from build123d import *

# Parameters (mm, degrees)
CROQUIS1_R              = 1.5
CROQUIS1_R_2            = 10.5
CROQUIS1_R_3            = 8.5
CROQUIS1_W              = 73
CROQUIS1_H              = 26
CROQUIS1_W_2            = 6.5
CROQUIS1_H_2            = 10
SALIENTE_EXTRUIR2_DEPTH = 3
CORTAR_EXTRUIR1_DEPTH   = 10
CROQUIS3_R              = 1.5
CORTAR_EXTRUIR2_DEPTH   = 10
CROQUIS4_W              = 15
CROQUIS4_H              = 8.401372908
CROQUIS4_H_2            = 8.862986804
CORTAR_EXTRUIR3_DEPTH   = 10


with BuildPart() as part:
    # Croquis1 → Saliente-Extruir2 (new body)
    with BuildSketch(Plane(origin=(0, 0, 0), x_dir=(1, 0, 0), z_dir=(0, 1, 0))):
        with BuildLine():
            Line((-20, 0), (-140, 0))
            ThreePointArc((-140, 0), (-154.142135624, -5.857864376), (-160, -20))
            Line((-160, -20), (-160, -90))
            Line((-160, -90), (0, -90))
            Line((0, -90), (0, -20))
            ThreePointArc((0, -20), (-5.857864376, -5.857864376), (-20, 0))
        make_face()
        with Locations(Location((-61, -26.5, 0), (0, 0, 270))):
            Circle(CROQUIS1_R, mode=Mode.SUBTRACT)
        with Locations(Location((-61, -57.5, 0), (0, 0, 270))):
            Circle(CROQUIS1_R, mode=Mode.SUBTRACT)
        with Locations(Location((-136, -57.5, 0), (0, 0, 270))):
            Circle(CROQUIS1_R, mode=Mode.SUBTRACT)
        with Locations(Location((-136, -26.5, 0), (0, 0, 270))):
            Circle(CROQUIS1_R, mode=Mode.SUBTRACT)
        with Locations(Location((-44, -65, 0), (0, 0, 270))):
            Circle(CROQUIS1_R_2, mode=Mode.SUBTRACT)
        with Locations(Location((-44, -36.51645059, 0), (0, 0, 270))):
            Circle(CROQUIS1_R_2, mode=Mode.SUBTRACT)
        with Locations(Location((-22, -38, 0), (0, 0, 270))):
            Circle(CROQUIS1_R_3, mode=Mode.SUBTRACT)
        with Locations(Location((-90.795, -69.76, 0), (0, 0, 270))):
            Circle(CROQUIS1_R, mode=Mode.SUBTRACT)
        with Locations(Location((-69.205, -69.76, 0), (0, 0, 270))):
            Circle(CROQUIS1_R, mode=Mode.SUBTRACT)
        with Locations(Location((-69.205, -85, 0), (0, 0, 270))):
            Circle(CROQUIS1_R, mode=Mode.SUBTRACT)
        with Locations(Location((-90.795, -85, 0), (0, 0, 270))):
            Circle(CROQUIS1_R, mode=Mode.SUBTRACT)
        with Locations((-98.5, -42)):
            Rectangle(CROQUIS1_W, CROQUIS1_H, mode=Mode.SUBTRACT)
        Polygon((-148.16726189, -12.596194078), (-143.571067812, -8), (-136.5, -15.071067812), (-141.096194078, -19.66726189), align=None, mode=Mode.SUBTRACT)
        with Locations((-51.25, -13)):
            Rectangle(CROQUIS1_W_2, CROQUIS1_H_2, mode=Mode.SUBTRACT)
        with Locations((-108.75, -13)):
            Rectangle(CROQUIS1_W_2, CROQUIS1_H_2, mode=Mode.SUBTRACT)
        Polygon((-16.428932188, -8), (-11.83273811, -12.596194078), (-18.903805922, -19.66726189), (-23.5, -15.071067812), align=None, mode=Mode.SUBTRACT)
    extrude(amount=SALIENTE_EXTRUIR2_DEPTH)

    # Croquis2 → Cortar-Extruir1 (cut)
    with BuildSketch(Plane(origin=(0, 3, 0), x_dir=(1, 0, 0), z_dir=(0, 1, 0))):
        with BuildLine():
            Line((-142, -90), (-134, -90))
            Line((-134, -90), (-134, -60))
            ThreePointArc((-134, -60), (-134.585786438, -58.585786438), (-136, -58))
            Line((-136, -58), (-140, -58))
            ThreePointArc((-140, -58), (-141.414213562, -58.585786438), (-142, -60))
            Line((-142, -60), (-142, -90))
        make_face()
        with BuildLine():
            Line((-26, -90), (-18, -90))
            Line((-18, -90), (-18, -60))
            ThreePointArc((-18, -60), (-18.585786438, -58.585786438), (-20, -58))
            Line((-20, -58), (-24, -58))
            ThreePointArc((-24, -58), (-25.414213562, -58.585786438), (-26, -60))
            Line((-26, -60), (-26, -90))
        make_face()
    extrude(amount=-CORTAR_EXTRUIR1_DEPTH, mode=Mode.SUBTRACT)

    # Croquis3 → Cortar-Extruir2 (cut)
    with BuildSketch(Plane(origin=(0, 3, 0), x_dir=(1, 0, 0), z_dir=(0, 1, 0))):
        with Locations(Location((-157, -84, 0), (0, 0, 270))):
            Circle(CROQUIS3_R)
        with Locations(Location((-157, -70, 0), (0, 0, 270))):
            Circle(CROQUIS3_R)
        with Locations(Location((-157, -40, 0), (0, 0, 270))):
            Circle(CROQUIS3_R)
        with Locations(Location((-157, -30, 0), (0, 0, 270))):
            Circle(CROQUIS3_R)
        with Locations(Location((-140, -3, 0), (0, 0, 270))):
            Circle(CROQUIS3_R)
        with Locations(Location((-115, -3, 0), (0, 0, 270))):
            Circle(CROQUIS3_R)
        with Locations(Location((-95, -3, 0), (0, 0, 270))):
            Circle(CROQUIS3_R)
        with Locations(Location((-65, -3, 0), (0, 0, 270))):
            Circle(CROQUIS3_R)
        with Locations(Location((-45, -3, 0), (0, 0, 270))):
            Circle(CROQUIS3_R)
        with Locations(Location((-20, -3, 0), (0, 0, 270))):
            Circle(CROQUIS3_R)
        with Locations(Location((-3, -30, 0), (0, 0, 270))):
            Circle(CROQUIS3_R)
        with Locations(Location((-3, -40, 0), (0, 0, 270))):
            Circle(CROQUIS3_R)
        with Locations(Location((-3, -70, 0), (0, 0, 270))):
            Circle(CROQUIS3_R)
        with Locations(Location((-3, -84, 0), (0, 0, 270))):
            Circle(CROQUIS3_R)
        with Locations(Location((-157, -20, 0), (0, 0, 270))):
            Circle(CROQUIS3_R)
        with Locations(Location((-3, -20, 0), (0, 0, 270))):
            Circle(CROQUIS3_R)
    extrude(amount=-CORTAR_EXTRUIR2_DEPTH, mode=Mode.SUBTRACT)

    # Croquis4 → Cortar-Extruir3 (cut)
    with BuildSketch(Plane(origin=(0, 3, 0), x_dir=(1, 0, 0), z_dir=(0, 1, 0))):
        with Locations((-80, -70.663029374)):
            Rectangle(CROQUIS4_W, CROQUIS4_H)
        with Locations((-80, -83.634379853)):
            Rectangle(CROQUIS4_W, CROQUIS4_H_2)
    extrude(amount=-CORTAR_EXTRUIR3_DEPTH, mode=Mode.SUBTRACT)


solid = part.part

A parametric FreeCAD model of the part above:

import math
import FreeCAD as App
import Part
import Sketcher

V = App.Vector

doc = App.newDocument("Part")
body = doc.addObject("PartDesign::Body", "Body")

# Sketch on XZ plane
sketch1 = body.newObject("Sketcher::SketchObject", "Sketch")
sketch1.AttachmentSupport = (doc.getObject("XZ_Plane"), [""])
sketch1.MapMode = "FlatFace"
sketch1.addGeometry(Part.LineSegment(V(-20, 0, 0), V(-140, 0, 0)), False)
sketch1.addGeometry(Part.ArcOfCircle(Part.Circle(V(-140, 20, 0), V(0, 0, 1), 20), math.radians(180), math.radians(270)), False)
sketch1.addGeometry(Part.LineSegment(V(-160, 20, 0), V(-160, 90, 0)), False)
sketch1.addGeometry(Part.LineSegment(V(-160, 90, 0), V(0, 90, 0)), False)
sketch1.addGeometry(Part.LineSegment(V(0, 90, 0), V(0, 20, 0)), False)
sketch1.addGeometry(Part.ArcOfCircle(Part.Circle(V(-20, 20, 0), V(0, 0, 1), 20), math.radians(-90), math.radians(0)), False)
sketch1.addGeometry(Part.Circle(V(-90.8, 85, 0), V(0, 0, 1), 1.5), False)
sketch1.addGeometry(Part.Circle(V(-90.8, 69.8, 0), V(0, 0, 1), 1.5), False)
sketch1.addGeometry(Part.Circle(V(-136, 57.5, 0), V(0, 0, 1), 1.5), False)
sketch1.addGeometry(Part.Circle(V(-69.2, 85, 0), V(0, 0, 1), 1.5), False)
sketch1.addGeometry(Part.Circle(V(-69.2, 69.8, 0), V(0, 0, 1), 1.5), False)
sketch1.addGeometry(Part.Circle(V(-61, 57.5, 0), V(0, 0, 1), 1.5), False)
sketch1.addGeometry(Part.Circle(V(-44, 65, 0), V(0, 0, 1), 10.5), False)
sketch1.addGeometry(Part.LineSegment(V(-62, 55, 0), V(-135, 55, 0)), False)
sketch1.addGeometry(Part.LineSegment(V(-135, 55, 0), V(-135, 29, 0)), False)
sketch1.addGeometry(Part.LineSegment(V(-135, 29, 0), V(-62, 29, 0)), False)
sketch1.addGeometry(Part.LineSegment(V(-62, 29, 0), V(-62, 55, 0)), False)
sketch1.addGeometry(Part.Circle(V(-136, 26.5, 0), V(0, 0, 1), 1.5), False)
sketch1.addGeometry(Part.LineSegment(V(-141.1, 19.7, 0), V(-148.2, 12.6, 0)), False)
sketch1.addGeometry(Part.LineSegment(V(-148.2, 12.6, 0), V(-143.6, 8, 0)), False)
sketch1.addGeometry(Part.LineSegment(V(-143.6, 8, 0), V(-136.5, 15.1, 0)), False)
sketch1.addGeometry(Part.LineSegment(V(-136.5, 15.1, 0), V(-141.1, 19.7, 0)), False)
sketch1.addGeometry(Part.LineSegment(V(-105.5, 18, 0), V(-112, 18, 0)), False)
sketch1.addGeometry(Part.LineSegment(V(-112, 18, 0), V(-112, 8, 0)), False)
sketch1.addGeometry(Part.LineSegment(V(-112, 8, 0), V(-105.5, 8, 0)), False)
sketch1.addGeometry(Part.LineSegment(V(-105.5, 8, 0), V(-105.5, 18, 0)), False)
sketch1.addGeometry(Part.Circle(V(-22, 38, 0), V(0, 0, 1), 8.5), False)
sketch1.addGeometry(Part.Circle(V(-44, 36.5, 0), V(0, 0, 1), 10.5), False)
sketch1.addGeometry(Part.Circle(V(-61, 26.5, 0), V(0, 0, 1), 1.5), False)
sketch1.addGeometry(Part.LineSegment(V(-48, 18, 0), V(-54.5, 18, 0)), False)
sketch1.addGeometry(Part.LineSegment(V(-54.5, 18, 0), V(-54.5, 8, 0)), False)
sketch1.addGeometry(Part.LineSegment(V(-54.5, 8, 0), V(-48, 8, 0)), False)
sketch1.addGeometry(Part.LineSegment(V(-48, 8, 0), V(-48, 18, 0)), False)
sketch1.addGeometry(Part.LineSegment(V(-23.5, 15.1, 0), V(-16.4, 8, 0)), False)
sketch1.addGeometry(Part.LineSegment(V(-16.4, 8, 0), V(-11.8, 12.6, 0)), False)
sketch1.addGeometry(Part.LineSegment(V(-11.8, 12.6, 0), V(-18.9, 19.7, 0)), False)
sketch1.addGeometry(Part.LineSegment(V(-18.9, 19.7, 0), V(-23.5, 15.1, 0)), False)
sketch1.addConstraint(Sketcher.Constraint("Tangent", 0, 2, 1, 2))
sketch1.addConstraint(Sketcher.Constraint("Tangent", 1, 1, 2, 1))
sketch1.addConstraint(Sketcher.Constraint("Coincident", 2, 2, 3, 1))
sketch1.addConstraint(Sketcher.Constraint("Coincident", 3, 2, 4, 1))
sketch1.addConstraint(Sketcher.Constraint("Tangent", 4, 2, 5, 2))
sketch1.addConstraint(Sketcher.Constraint("Tangent", 5, 1, 0, 1))
sketch1.addConstraint(Sketcher.Constraint("Coincident", 13, 2, 14, 1))
sketch1.addConstraint(Sketcher.Constraint("Coincident", 14, 2, 15, 1))
sketch1.addConstraint(Sketcher.Constraint("Coincident", 15, 2, 16, 1))
sketch1.addConstraint(Sketcher.Constraint("Coincident", 16, 2, 13, 1))
sketch1.addConstraint(Sketcher.Constraint("Coincident", 18, 2, 19, 1))
sketch1.addConstraint(Sketcher.Constraint("Coincident", 19, 2, 20, 1))
sketch1.addConstraint(Sketcher.Constraint("Coincident", 20, 2, 21, 1))
sketch1.addConstraint(Sketcher.Constraint("Coincident", 21, 2, 18, 1))
sketch1.addConstraint(Sketcher.Constraint("Coincident", 22, 2, 23, 1))
sketch1.addConstraint(Sketcher.Constraint("Coincident", 23, 2, 24, 1))
sketch1.addConstraint(Sketcher.Constraint("Coincident", 24, 2, 25, 1))
sketch1.addConstraint(Sketcher.Constraint("Coincident", 25, 2, 22, 1))
sketch1.addConstraint(Sketcher.Constraint("Coincident", 29, 2, 30, 1))
sketch1.addConstraint(Sketcher.Constraint("Coincident", 30, 2, 31, 1))
sketch1.addConstraint(Sketcher.Constraint("Coincident", 31, 2, 32, 1))
sketch1.addConstraint(Sketcher.Constraint("Coincident", 32, 2, 29, 1))
sketch1.addConstraint(Sketcher.Constraint("Coincident", 33, 2, 34, 1))
sketch1.addConstraint(Sketcher.Constraint("Coincident", 34, 2, 35, 1))
sketch1.addConstraint(Sketcher.Constraint("Coincident", 35, 2, 36, 1))
sketch1.addConstraint(Sketcher.Constraint("Coincident", 36, 2, 33, 1))
sketch1.addConstraint(Sketcher.Constraint("Horizontal", 0))
sketch1.addConstraint(Sketcher.Constraint("Vertical", 2))
sketch1.addConstraint(Sketcher.Constraint("Horizontal", 3))
sketch1.addConstraint(Sketcher.Constraint("Vertical", 4))
sketch1.addConstraint(Sketcher.Constraint("Horizontal", 13))
sketch1.addConstraint(Sketcher.Constraint("Vertical", 14))
sketch1.addConstraint(Sketcher.Constraint("Horizontal", 15))
sketch1.addConstraint(Sketcher.Constraint("Vertical", 16))
sketch1.addConstraint(Sketcher.Constraint("Horizontal", 22))
sketch1.addConstraint(Sketcher.Constraint("Vertical", 23))
sketch1.addConstraint(Sketcher.Constraint("Horizontal", 24))
sketch1.addConstraint(Sketcher.Constraint("Vertical", 25))
sketch1.addConstraint(Sketcher.Constraint("Horizontal", 29))
sketch1.addConstraint(Sketcher.Constraint("Vertical", 30))
sketch1.addConstraint(Sketcher.Constraint("Horizontal", 31))
sketch1.addConstraint(Sketcher.Constraint("Vertical", 32))
sketch1.addConstraint(Sketcher.Constraint("Equal", 1, 5))
sketch1.addConstraint(Sketcher.Constraint("Equal", 6, 7))
sketch1.addConstraint(Sketcher.Constraint("Equal", 7, 8))
sketch1.addConstraint(Sketcher.Constraint("Equal", 8, 9))
sketch1.addConstraint(Sketcher.Constraint("Equal", 9, 10))
sketch1.addConstraint(Sketcher.Constraint("Equal", 10, 11))
sketch1.addConstraint(Sketcher.Constraint("Equal", 11, 17))
sketch1.addConstraint(Sketcher.Constraint("Equal", 12, 27))
sketch1.addConstraint(Sketcher.Constraint("Equal", 17, 28))
sketch1.addConstraint(Sketcher.Constraint("PointOnObject", 0, 2, -1))
sketch1.addConstraint(Sketcher.Constraint("PointOnObject", 3, 2, -2))
sketch1.addConstraint(Sketcher.Constraint("Perpendicular", 18, 19))
sketch1.addConstraint(Sketcher.Constraint("Perpendicular", 19, 20))
sketch1.addConstraint(Sketcher.Constraint("Perpendicular", 20, 21))
sketch1.addConstraint(Sketcher.Constraint("Parallel", 21, 33))
sketch1.addConstraint(Sketcher.Constraint("Perpendicular", 33, 34))
sketch1.addConstraint(Sketcher.Constraint("Perpendicular", 34, 35))
sketch1.addConstraint(Sketcher.Constraint("Perpendicular", 35, 36))
sketch1.addConstraint(Sketcher.Constraint("Horizontal", 6, 3, 9, 3))
sketch1.addConstraint(Sketcher.Constraint("Horizontal", 7, 3, 10, 3))
sketch1.addConstraint(Sketcher.Constraint("Horizontal", 8, 3, 11, 3))
sketch1.addConstraint(Sketcher.Constraint("Horizontal", 17, 3, 28, 3))
sketch1.addConstraint(Sketcher.Constraint("Horizontal", 19, 2, 23, 2))
sketch1.addConstraint(Sketcher.Constraint("Horizontal", 25, 2, 29, 2))
sketch1.addConstraint(Sketcher.Constraint("Horizontal", 24, 2, 30, 2))
sketch1.addConstraint(Sketcher.Constraint("Horizontal", 31, 2, 33, 2))
sketch1.addConstraint(Sketcher.Constraint("Horizontal", 18, 2, 34, 2))
sketch1.addConstraint(Sketcher.Constraint("Horizontal", 21, 2, 35, 2))
sketch1.addConstraint(Sketcher.Constraint("Vertical", 6, 3, 7, 3))
sketch1.addConstraint(Sketcher.Constraint("Vertical", 9, 3, 10, 3))
sketch1.addConstraint(Sketcher.Constraint("Vertical", 8, 3, 17, 3))
sketch1.addConstraint(Sketcher.Constraint("Vertical", 12, 3, 27, 3))
sketch1.addConstraint(Sketcher.Constraint("Vertical", 11, 3, 28, 3))
sketch1.addConstraint(Sketcher.Constraint("Equal", 24, 29))
sketch1.addConstraint(Sketcher.Constraint("Equal", 20, 33))
sketch1.addConstraint(Sketcher.Constraint("Diameter", 6, 3.0))
sketch1.addConstraint(Sketcher.Constraint("Diameter", 12, 21.0))
sketch1.addConstraint(Sketcher.Constraint("Diameter", 26, 17.0))
sketch1.addConstraint(Sketcher.Constraint("Radius", 1, 20.0))
sketch1.addConstraint(Sketcher.Constraint("DistanceX", 0, 2, 0, 1, 120.0))
sketch1.addConstraint(Sketcher.Constraint("DistanceX", 13, 2, 13, 1, 73.0))
sketch1.addConstraint(Sketcher.Constraint("DistanceY", 2, 1, 2, 2, 70.0))
sketch1.addConstraint(Sketcher.Constraint("DistanceY", 14, 2, 14, 1, 26.0))
sketch1.addConstraint(Sketcher.Constraint("DistanceY", 23, 2, 23, 1, 10.0))
sketch1.addConstraint(Sketcher.Constraint("Distance", 18, 10.0))
sketch1.addConstraint(Sketcher.Constraint("DistanceX", 22, 2, 22, 1, 6.5))
sketch1.addConstraint(Sketcher.Constraint("DistanceY", -1, 1, 6, 3, 85.0))
sketch1.addConstraint(Sketcher.Constraint("DistanceX", 8, 3, -1, 1, 136.0))
sketch1.addConstraint(Sketcher.Constraint("DistanceX", 11, 3, -1, 1, 61.0))
sketch1.addConstraint(Sketcher.Constraint("DistanceX", 12, 3, -1, 1, 44.0))
sketch1.addConstraint(Sketcher.Constraint("DistanceY", -1, 1, 12, 3, 65.0))
sketch1.addConstraint(Sketcher.Constraint("DistanceX", 26, 3, -1, 1, 22.0))
sketch1.addConstraint(Sketcher.Constraint("DistanceY", -1, 1, 26, 3, 38.0))
sketch1.addConstraint(Sketcher.Constraint("DistanceX", 13, 2, -1, 1, 135.0))
sketch1.addConstraint(Sketcher.Constraint("DistanceY", -1, 1, 13, 2, 55.0))
sketch1.addConstraint(Sketcher.Constraint("DistanceY", -1, 1, 19, 2, 8.0))
sketch1.addConstraint(Sketcher.Constraint("DistanceX", 22, 2, -1, 1, 112.0))
sketch1.addConstraint(Sketcher.Constraint("DistanceX", 31, 2, -1, 1, 48.0))
sketch1.addConstraint(Sketcher.Constraint("DistanceY", 17, 3, 8, 3, 31.0))
sketch1.addConstraint(Sketcher.Constraint("DistanceX", 20, 2, 24, 2, 31.0))
sketch1.addConstraint(Sketcher.Constraint("Distance", 19, 6.5))
sketch1.addConstraint(Sketcher.Constraint("DistanceY", -1, 1, 8, 3, 57.5))
sketch1.addConstraint(Sketcher.Constraint("DistanceX", 36, 2, -1, 1, 23.5))
sketch1.addConstraint(Sketcher.Constraint("DistanceY", -1, 1, 7, 3, 69.76))
sketch1.addConstraint(Sketcher.Constraint("DistanceX", 6, 3, 9, 3, 21.59))
sketch1.addConstraint(Sketcher.Constraint("DistanceX", 6, 3, -1, 1, 90.795))
sketch1.addConstraint(Sketcher.Constraint("DistanceY", -1, 1, 27, 3, 36.516451))
pad1 = body.newObject("PartDesign::Pad", "Pad")
pad1.Profile = sketch1
pad1.Length = 3
pad1.Reversed = True

# Sketch on XZ plane
sketch2 = body.newObject("Sketcher::SketchObject", "Sketch001")
sketch2.AttachmentSupport = (doc.getObject("XZ_Plane"), [""])
sketch2.MapMode = "FlatFace"
sketch2.AttachmentOffset = App.Placement(V(0, 0, -3), App.Rotation())
sketch2.addGeometry(Part.LineSegment(V(-142, 90, 0), V(-134, 90, 0)), False)
sketch2.addGeometry(Part.LineSegment(V(-134, 90, 0), V(-134, 60, 0)), False)
sketch2.addGeometry(Part.ArcOfCircle(Part.Circle(V(-136, 60, 0), V(0, 0, 1), 2), math.radians(-90), math.radians(0)), False)
sketch2.addGeometry(Part.LineSegment(V(-136, 58, 0), V(-140, 58, 0)), False)
sketch2.addGeometry(Part.ArcOfCircle(Part.Circle(V(-140, 60, 0), V(0, 0, 1), 2), math.radians(-180), math.radians(-90)), False)
sketch2.addGeometry(Part.LineSegment(V(-142, 60, 0), V(-142, 90, 0)), False)
sketch2.addGeometry(Part.LineSegment(V(-26, 90, 0), V(-18, 90, 0)), False)
sketch2.addGeometry(Part.LineSegment(V(-18, 90, 0), V(-18, 60, 0)), False)
sketch2.addGeometry(Part.ArcOfCircle(Part.Circle(V(-20, 60, 0), V(0, 0, 1), 2), math.radians(-90), math.radians(0)), False)
sketch2.addGeometry(Part.LineSegment(V(-20, 58, 0), V(-24, 58, 0)), False)
sketch2.addGeometry(Part.ArcOfCircle(Part.Circle(V(-24, 60, 0), V(0, 0, 1), 2), math.radians(-180), math.radians(-90)), False)
sketch2.addGeometry(Part.LineSegment(V(-26, 60, 0), V(-26, 90, 0)), False)
sketch2.addConstraint(Sketcher.Constraint("Coincident", 0, 2, 1, 1))
sketch2.addConstraint(Sketcher.Constraint("Tangent", 1, 2, 2, 2))
sketch2.addConstraint(Sketcher.Constraint("Tangent", 2, 1, 3, 1))
sketch2.addConstraint(Sketcher.Constraint("Tangent", 3, 2, 4, 2))
sketch2.addConstraint(Sketcher.Constraint("Tangent", 4, 1, 5, 1))
sketch2.addConstraint(Sketcher.Constraint("Coincident", 5, 2, 0, 1))
sketch2.addConstraint(Sketcher.Constraint("Coincident", 6, 2, 7, 1))
sketch2.addConstraint(Sketcher.Constraint("Tangent", 7, 2, 8, 2))
sketch2.addConstraint(Sketcher.Constraint("Tangent", 8, 1, 9, 1))
sketch2.addConstraint(Sketcher.Constraint("Tangent", 9, 2, 10, 2))
sketch2.addConstraint(Sketcher.Constraint("Tangent", 10, 1, 11, 1))
sketch2.addConstraint(Sketcher.Constraint("Coincident", 11, 2, 6, 1))
sketch2.addConstraint(Sketcher.Constraint("Horizontal", 0))
sketch2.addConstraint(Sketcher.Constraint("Vertical", 1))
sketch2.addConstraint(Sketcher.Constraint("Horizontal", 3))
sketch2.addConstraint(Sketcher.Constraint("Vertical", 5))
sketch2.addConstraint(Sketcher.Constraint("Horizontal", 6))
sketch2.addConstraint(Sketcher.Constraint("Vertical", 7))
sketch2.addConstraint(Sketcher.Constraint("Horizontal", 9))
sketch2.addConstraint(Sketcher.Constraint("Vertical", 11))
sketch2.addConstraint(Sketcher.Constraint("Equal", 2, 4))
sketch2.addConstraint(Sketcher.Constraint("Equal", 4, 8))
sketch2.addConstraint(Sketcher.Constraint("Equal", 8, 10))
sketch2.addConstraint(Sketcher.Constraint("Horizontal", 4, 3, 8, 3))
sketch2.addConstraint(Sketcher.Constraint("Horizontal", 5, 2, 6, 2))
sketch2.addConstraint(Sketcher.Constraint("Equal", 0, 6))
sketch2.addConstraint(Sketcher.Constraint("Radius", 2, 2.0))
sketch2.addConstraint(Sketcher.Constraint("DistanceX", 0, 1, 0, 2, 8.0))
sketch2.addConstraint(Sketcher.Constraint("DistanceY", 1, 2, 1, 1, 30.0))
sketch2.addConstraint(Sketcher.Constraint("DistanceX", 2, 3, -1, 1, 136.0))
sketch2.addConstraint(Sketcher.Constraint("DistanceY", -1, 1, 2, 3, 60.0))
sketch2.addConstraint(Sketcher.Constraint("DistanceX", 8, 3, -1, 1, 20.0))
pocket1 = body.newObject("PartDesign::Pocket", "Pocket")
pocket1.Profile = sketch2
pocket1.Length = 10
pocket1.Reversed = True

# Sketch on XZ plane
sketch3 = body.newObject("Sketcher::SketchObject", "Sketch002")
sketch3.AttachmentSupport = (doc.getObject("XZ_Plane"), [""])
sketch3.MapMode = "FlatFace"
sketch3.AttachmentOffset = App.Placement(V(0, 0, -3), App.Rotation())
sketch3.addGeometry(Part.Circle(V(-157, 84, 0), V(0, 0, 1), 1.5), False)
sketch3.addGeometry(Part.Circle(V(-157, 70, 0), V(0, 0, 1), 1.5), False)
sketch3.addGeometry(Part.Circle(V(-157, 40, 0), V(0, 0, 1), 1.5), False)
sketch3.addGeometry(Part.Circle(V(-157, 30, 0), V(0, 0, 1), 1.5), False)
sketch3.addGeometry(Part.Circle(V(-140, 3, 0), V(0, 0, 1), 1.5), False)
sketch3.addGeometry(Part.Circle(V(-115, 3, 0), V(0, 0, 1), 1.5), False)
sketch3.addGeometry(Part.Circle(V(-95, 3, 0), V(0, 0, 1), 1.5), False)
sketch3.addGeometry(Part.Circle(V(-65, 3, 0), V(0, 0, 1), 1.5), False)
sketch3.addGeometry(Part.Circle(V(-45, 3, 0), V(0, 0, 1), 1.5), False)
sketch3.addGeometry(Part.Circle(V(-20, 3, 0), V(0, 0, 1), 1.5), False)
sketch3.addGeometry(Part.Circle(V(-3, 30, 0), V(0, 0, 1), 1.5), False)
sketch3.addGeometry(Part.Circle(V(-3, 40, 0), V(0, 0, 1), 1.5), False)
sketch3.addGeometry(Part.Circle(V(-3, 70, 0), V(0, 0, 1), 1.5), False)
sketch3.addGeometry(Part.Circle(V(-3, 84, 0), V(0, 0, 1), 1.5), False)
sketch3.addGeometry(Part.Circle(V(-157, 20, 0), V(0, 0, 1), 1.5), False)
sketch3.addGeometry(Part.Circle(V(-3, 20, 0), V(0, 0, 1), 1.5), False)
sketch3.addConstraint(Sketcher.Constraint("Equal", 0, 1))
sketch3.addConstraint(Sketcher.Constraint("Equal", 1, 2))
sketch3.addConstraint(Sketcher.Constraint("Equal", 2, 3))
sketch3.addConstraint(Sketcher.Constraint("Equal", 3, 4))
sketch3.addConstraint(Sketcher.Constraint("Equal", 4, 5))
sketch3.addConstraint(Sketcher.Constraint("Equal", 5, 6))
sketch3.addConstraint(Sketcher.Constraint("Equal", 6, 7))
sketch3.addConstraint(Sketcher.Constraint("Equal", 7, 8))
sketch3.addConstraint(Sketcher.Constraint("Equal", 8, 9))
sketch3.addConstraint(Sketcher.Constraint("Equal", 9, 10))
sketch3.addConstraint(Sketcher.Constraint("Equal", 10, 11))
sketch3.addConstraint(Sketcher.Constraint("Equal", 11, 12))
sketch3.addConstraint(Sketcher.Constraint("Equal", 12, 13))
sketch3.addConstraint(Sketcher.Constraint("Equal", 13, 14))
sketch3.addConstraint(Sketcher.Constraint("Equal", 14, 15))
sketch3.addConstraint(Sketcher.Constraint("Horizontal", 4, 3, 5, 3))
sketch3.addConstraint(Sketcher.Constraint("Horizontal", 5, 3, 6, 3))
sketch3.addConstraint(Sketcher.Constraint("Horizontal", 6, 3, 7, 3))
sketch3.addConstraint(Sketcher.Constraint("Horizontal", 7, 3, 8, 3))
sketch3.addConstraint(Sketcher.Constraint("Horizontal", 8, 3, 9, 3))
sketch3.addConstraint(Sketcher.Constraint("Horizontal", 3, 3, 10, 3))
sketch3.addConstraint(Sketcher.Constraint("Horizontal", 2, 3, 11, 3))
sketch3.addConstraint(Sketcher.Constraint("Horizontal", 1, 3, 12, 3))
sketch3.addConstraint(Sketcher.Constraint("Horizontal", 0, 3, 13, 3))
sketch3.addConstraint(Sketcher.Constraint("Horizontal", 14, 3, 15, 3))
sketch3.addConstraint(Sketcher.Constraint("Vertical", 0, 3, 1, 3))
sketch3.addConstraint(Sketcher.Constraint("Vertical", 1, 3, 2, 3))
sketch3.addConstraint(Sketcher.Constraint("Vertical", 2, 3, 3, 3))
sketch3.addConstraint(Sketcher.Constraint("Vertical", 10, 3, 11, 3))
sketch3.addConstraint(Sketcher.Constraint("Vertical", 11, 3, 12, 3))
sketch3.addConstraint(Sketcher.Constraint("Vertical", 12, 3, 13, 3))
sketch3.addConstraint(Sketcher.Constraint("Vertical", 3, 3, 14, 3))
sketch3.addConstraint(Sketcher.Constraint("Vertical", 13, 3, 15, 3))
sketch3.addConstraint(Sketcher.Constraint("Diameter", 0, 3.0))
sketch3.addConstraint(Sketcher.Constraint("DistanceX", 0, 3, -1, 1, 157.0))
sketch3.addConstraint(Sketcher.Constraint("DistanceY", -1, 1, 0, 3, 84.0))
sketch3.addConstraint(Sketcher.Constraint("DistanceY", -1, 1, 1, 3, 70.0))
sketch3.addConstraint(Sketcher.Constraint("DistanceY", -1, 1, 2, 3, 40.0))
sketch3.addConstraint(Sketcher.Constraint("DistanceY", -1, 1, 3, 3, 30.0))
sketch3.addConstraint(Sketcher.Constraint("DistanceX", 4, 3, -1, 1, 140.0))
sketch3.addConstraint(Sketcher.Constraint("DistanceY", -1, 1, 4, 3, 3.0))
sketch3.addConstraint(Sketcher.Constraint("DistanceX", 5, 3, -1, 1, 115.0))
sketch3.addConstraint(Sketcher.Constraint("DistanceX", 6, 3, -1, 1, 95.0))
sketch3.addConstraint(Sketcher.Constraint("DistanceX", 7, 3, -1, 1, 65.0))
sketch3.addConstraint(Sketcher.Constraint("DistanceX", 8, 3, -1, 1, 45.0))
sketch3.addConstraint(Sketcher.Constraint("DistanceX", 9, 3, -1, 1, 20.0))
sketch3.addConstraint(Sketcher.Constraint("DistanceX", 10, 3, -1, 1, 3.0))
sketch3.addConstraint(Sketcher.Constraint("DistanceY", -1, 1, 14, 3, 20.0))
pocket2 = body.newObject("PartDesign::Pocket", "Pocket001")
pocket2.Profile = sketch3
pocket2.Length = 10
pocket2.Reversed = True

# Sketch on XZ plane
sketch4 = body.newObject("Sketcher::SketchObject", "Sketch003")
sketch4.AttachmentSupport = (doc.getObject("XZ_Plane"), [""])
sketch4.MapMode = "FlatFace"
sketch4.AttachmentOffset = App.Placement(V(0, 0, -3), App.Rotation())
sketch4.addGeometry(Part.LineSegment(V(-88, 66, 0), V(-88, 75, 0)), False)
sketch4.addGeometry(Part.LineSegment(V(-88, 75, 0), V(-72, 75, 0)), False)
sketch4.addGeometry(Part.LineSegment(V(-72, 75, 0), V(-72, 66, 0)), False)
sketch4.addGeometry(Part.LineSegment(V(-72, 66, 0), V(-88, 66, 0)), False)
sketch4.addGeometry(Part.LineSegment(V(-88, 79, 0), V(-88, 88, 0)), False)
sketch4.addGeometry(Part.LineSegment(V(-88, 88, 0), V(-72, 88, 0)), False)
sketch4.addGeometry(Part.LineSegment(V(-72, 88, 0), V(-72, 79, 0)), False)
sketch4.addGeometry(Part.LineSegment(V(-72, 79, 0), V(-88, 79, 0)), False)
sketch4.addConstraint(Sketcher.Constraint("Coincident", 0, 2, 1, 1))
sketch4.addConstraint(Sketcher.Constraint("Coincident", 1, 2, 2, 1))
sketch4.addConstraint(Sketcher.Constraint("Coincident", 2, 2, 3, 1))
sketch4.addConstraint(Sketcher.Constraint("Coincident", 3, 2, 0, 1))
sketch4.addConstraint(Sketcher.Constraint("Coincident", 4, 2, 5, 1))
sketch4.addConstraint(Sketcher.Constraint("Coincident", 5, 2, 6, 1))
sketch4.addConstraint(Sketcher.Constraint("Coincident", 6, 2, 7, 1))
sketch4.addConstraint(Sketcher.Constraint("Coincident", 7, 2, 4, 1))
sketch4.addConstraint(Sketcher.Constraint("Vertical", 0))
sketch4.addConstraint(Sketcher.Constraint("Horizontal", 1))
sketch4.addConstraint(Sketcher.Constraint("Vertical", 2))
sketch4.addConstraint(Sketcher.Constraint("Horizontal", 3))
sketch4.addConstraint(Sketcher.Constraint("Vertical", 4))
sketch4.addConstraint(Sketcher.Constraint("Horizontal", 5))
sketch4.addConstraint(Sketcher.Constraint("Vertical", 6))
sketch4.addConstraint(Sketcher.Constraint("Horizontal", 7))
sketch4.addConstraint(Sketcher.Constraint("Vertical", 3, 2, 4, 2))
sketch4.addConstraint(Sketcher.Constraint("Vertical", 2, 2, 5, 2))
sketch4.addConstraint(Sketcher.Constraint("DistanceX", 1, 1, 1, 2, 15.0))
sketch4.addConstraint(Sketcher.Constraint("DistanceX", 0, 2, -1, 1, 87.5))
sketch4.addConstraint(Sketcher.Constraint("DistanceY", 0, 1, 0, 2, 8.401373))
sketch4.addConstraint(Sketcher.Constraint("DistanceY", 4, 1, 4, 2, 8.862987))
sketch4.addConstraint(Sketcher.Constraint("DistanceY", 3, 2, 4, 2, 21.60353))
sketch4.addConstraint(Sketcher.Constraint("DistanceY", -1, 1, 0, 2, 74.863716))
pocket3 = body.newObject("PartDesign::Pocket", "Pocket002")
pocket3.Profile = sketch4
pocket3.Length = 10
pocket3.Reversed = True

doc.recompute()
